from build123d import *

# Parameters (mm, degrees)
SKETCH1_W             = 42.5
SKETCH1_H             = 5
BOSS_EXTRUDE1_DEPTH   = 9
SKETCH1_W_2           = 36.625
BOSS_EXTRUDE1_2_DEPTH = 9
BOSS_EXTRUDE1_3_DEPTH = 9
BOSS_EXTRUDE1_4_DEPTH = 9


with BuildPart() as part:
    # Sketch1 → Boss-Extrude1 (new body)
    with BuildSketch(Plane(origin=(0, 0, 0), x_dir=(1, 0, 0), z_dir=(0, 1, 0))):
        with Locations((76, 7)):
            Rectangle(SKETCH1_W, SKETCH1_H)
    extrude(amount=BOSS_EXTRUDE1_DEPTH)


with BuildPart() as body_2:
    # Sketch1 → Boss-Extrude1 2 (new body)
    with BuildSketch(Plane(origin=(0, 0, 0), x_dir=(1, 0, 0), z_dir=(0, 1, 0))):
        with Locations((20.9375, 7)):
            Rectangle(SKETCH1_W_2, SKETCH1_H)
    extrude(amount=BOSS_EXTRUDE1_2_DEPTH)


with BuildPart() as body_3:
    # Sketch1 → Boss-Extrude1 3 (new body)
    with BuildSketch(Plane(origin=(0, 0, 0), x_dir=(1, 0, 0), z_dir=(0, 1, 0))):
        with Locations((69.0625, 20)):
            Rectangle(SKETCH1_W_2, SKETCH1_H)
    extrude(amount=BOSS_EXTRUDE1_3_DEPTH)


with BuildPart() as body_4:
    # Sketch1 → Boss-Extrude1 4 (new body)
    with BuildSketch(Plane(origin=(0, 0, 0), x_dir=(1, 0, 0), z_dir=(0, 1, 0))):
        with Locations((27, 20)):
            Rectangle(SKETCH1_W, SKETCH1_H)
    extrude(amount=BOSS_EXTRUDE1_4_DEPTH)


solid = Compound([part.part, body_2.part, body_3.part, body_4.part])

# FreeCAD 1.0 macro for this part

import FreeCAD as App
import Part
import Sketcher
from FreeCAD import Vector
Q = App.Units.Quantity


def add_polygon(sketch, points):
    """Adds a closed chain of lines whose ends are joined by coincident constraints."""
    first, n = sketch.GeometryCount, len(points)
    for a, b in zip(points, points[1:] + points[:1]):
        sketch.addGeometry(Part.LineSegment(App.Vector(*a, 0), App.Vector(*b, 0)), False)
    for i in range(n):
        sketch.addConstraint(Sketcher.Constraint("Coincident", first + i, 2, first + (i + 1) % n, 1))

doc = App.newDocument("Part")
body = doc.addObject("PartDesign::Body", "Body")

sketch1 = doc.addObject("Sketcher::SketchObject", "Sketch")
body.addObject(sketch1)
sketch1.AttachmentSupport = (doc.XZ_Plane, [""])
sketch1.MapMode = "FlatFace"
add_polygon(sketch1, [(55, -10), (55, -4), (97, -4), (97, -10)])
sketch1.addConstraint([
    Sketcher.Constraint("Vertical", 0),
    Sketcher.Constraint("Horizontal", 1),
    Sketcher.Constraint("Vertical", 2),
    Sketcher.Constraint("Horizontal", 3),
    Sketcher.Constraint("DistanceY", 0, 1, 0, 2, Q("5 mm")),
    Sketcher.Constraint("DistanceX", 1, 1, 1, 2, Q("42.5 mm")),
    Sketcher.Constraint("DistanceY", 0, 2, -1, 1, Q("4.5 mm")),
    Sketcher.Constraint("DistanceX", -1, 1, 0, 2, Q("54.75 mm")),
])
pad1 = doc.addObject("PartDesign::Pad", "Pad")
body.addObject(pad1)
pad1.Profile = sketch1
pad1.Length = 9
pad1.Reversed = True
body2 = doc.addObject("PartDesign::Body", "Body001")

sketch2 = doc.addObject("Sketcher::SketchObject", "Sketch001")
body2.addObject(sketch2)
sketch2.AttachmentSupport = (doc.getObject("XZ_Plane001"), [""])
sketch2.MapMode = "FlatFace"
add_polygon(sketch2, [(3, -10), (3, -4), (39, -4), (39, -10)])
sketch2.addConstraint([
    Sketcher.Constraint("Vertical", 0),
    Sketcher.Constraint("Horizontal", 1),
    Sketcher.Constraint("Vertical", 2),
    Sketcher.Constraint("Horizontal", 3),
    Sketcher.Constraint("DistanceY", 0, 1, 0, 2, Q("5 mm")),
    Sketcher.Constraint("DistanceY", 0, 2, -1, 1, Q("4.5 mm")),
    Sketcher.Constraint("DistanceX", 1, 1, 1, 2, Q("36.625 mm")),
    Sketcher.Constraint("DistanceX", -1, 1, 1, 2, Q("39.25 mm")),
])
pad2 = doc.addObject("PartDesign::Pad", "Pad001")
body2.addObject(pad2)
pad2.Profile = sketch2
pad2.Length = 9
pad2.Reversed = True
body3 = doc.addObject("PartDesign::Body", "Body002")

sketch3 = doc.addObject("Sketcher::SketchObject", "Sketch002")
body3.addObject(sketch3)
sketch3.AttachmentSupport = (doc.getObject("XZ_Plane002"), [""])
sketch3.MapMode = "FlatFace"
add_polygon(sketch3, [(51, -22), (51, -18), (87, -18), (87, -22)])
sketch3.addConstraint([
    Sketcher.Constraint("Vertical", 0),
    Sketcher.Constraint("Horizontal", 1),
    Sketcher.Constraint("Vertical", 2),
    Sketcher.Constraint("Horizontal", 3),
    Sketcher.Constraint("DistanceY", 0, 1, 0, 2, Q("5 mm")),
    Sketcher.Constraint("DistanceY", 0, 2, -1, 1, Q("17.5 mm")),
    Sketcher.Constraint("DistanceX", 1, 1, 1, 2, Q("36.625 mm")),
    Sketcher.Constraint("DistanceX", -1, 1, 0, 2, Q("50.75 mm")),
])
pad3 = doc.addObject("PartDesign::Pad", "Pad002")
body3.addObject(pad3)
pad3.Profile = sketch3
pad3.Length = 9
pad3.Reversed = True
body4 = doc.addObject("PartDesign::Body", "Body003")

sketch4 = doc.addObject("Sketcher::SketchObject", "Sketch003")
body4.addObject(sketch4)
sketch4.AttachmentSupport = (doc.getObject("XZ_Plane003"), [""])
sketch4.MapMode = "FlatFace"
add_polygon(sketch4, [(6, -22), (6, -18), (48, -18), (48, -22)])
sketch4.addConstraint([
    Sketcher.Constraint("Vertical", 0),
    Sketcher.Constraint("Horizontal", 1),
    Sketcher.Constraint("Vertical", 2),
    Sketcher.Constraint("Horizontal", 3),
    Sketcher.Constraint("DistanceY", 0, 1, 0, 2, Q("5 mm")),
    Sketcher.Constraint("DistanceX", 1, 1, 1, 2, Q("42.5 mm")),
    Sketcher.Constraint("DistanceY", 0, 2, -1, 1, Q("17.5 mm")),
    Sketcher.Constraint("DistanceX", -1, 1, 0, 2, Q("5.75 mm")),
])
pad4 = doc.addObject("PartDesign::Pad", "Pad003")
body4.addObject(pad4)
pad4.Profile = sketch4
pad4.Length = 9
pad4.Reversed = True

doc.recompute()
